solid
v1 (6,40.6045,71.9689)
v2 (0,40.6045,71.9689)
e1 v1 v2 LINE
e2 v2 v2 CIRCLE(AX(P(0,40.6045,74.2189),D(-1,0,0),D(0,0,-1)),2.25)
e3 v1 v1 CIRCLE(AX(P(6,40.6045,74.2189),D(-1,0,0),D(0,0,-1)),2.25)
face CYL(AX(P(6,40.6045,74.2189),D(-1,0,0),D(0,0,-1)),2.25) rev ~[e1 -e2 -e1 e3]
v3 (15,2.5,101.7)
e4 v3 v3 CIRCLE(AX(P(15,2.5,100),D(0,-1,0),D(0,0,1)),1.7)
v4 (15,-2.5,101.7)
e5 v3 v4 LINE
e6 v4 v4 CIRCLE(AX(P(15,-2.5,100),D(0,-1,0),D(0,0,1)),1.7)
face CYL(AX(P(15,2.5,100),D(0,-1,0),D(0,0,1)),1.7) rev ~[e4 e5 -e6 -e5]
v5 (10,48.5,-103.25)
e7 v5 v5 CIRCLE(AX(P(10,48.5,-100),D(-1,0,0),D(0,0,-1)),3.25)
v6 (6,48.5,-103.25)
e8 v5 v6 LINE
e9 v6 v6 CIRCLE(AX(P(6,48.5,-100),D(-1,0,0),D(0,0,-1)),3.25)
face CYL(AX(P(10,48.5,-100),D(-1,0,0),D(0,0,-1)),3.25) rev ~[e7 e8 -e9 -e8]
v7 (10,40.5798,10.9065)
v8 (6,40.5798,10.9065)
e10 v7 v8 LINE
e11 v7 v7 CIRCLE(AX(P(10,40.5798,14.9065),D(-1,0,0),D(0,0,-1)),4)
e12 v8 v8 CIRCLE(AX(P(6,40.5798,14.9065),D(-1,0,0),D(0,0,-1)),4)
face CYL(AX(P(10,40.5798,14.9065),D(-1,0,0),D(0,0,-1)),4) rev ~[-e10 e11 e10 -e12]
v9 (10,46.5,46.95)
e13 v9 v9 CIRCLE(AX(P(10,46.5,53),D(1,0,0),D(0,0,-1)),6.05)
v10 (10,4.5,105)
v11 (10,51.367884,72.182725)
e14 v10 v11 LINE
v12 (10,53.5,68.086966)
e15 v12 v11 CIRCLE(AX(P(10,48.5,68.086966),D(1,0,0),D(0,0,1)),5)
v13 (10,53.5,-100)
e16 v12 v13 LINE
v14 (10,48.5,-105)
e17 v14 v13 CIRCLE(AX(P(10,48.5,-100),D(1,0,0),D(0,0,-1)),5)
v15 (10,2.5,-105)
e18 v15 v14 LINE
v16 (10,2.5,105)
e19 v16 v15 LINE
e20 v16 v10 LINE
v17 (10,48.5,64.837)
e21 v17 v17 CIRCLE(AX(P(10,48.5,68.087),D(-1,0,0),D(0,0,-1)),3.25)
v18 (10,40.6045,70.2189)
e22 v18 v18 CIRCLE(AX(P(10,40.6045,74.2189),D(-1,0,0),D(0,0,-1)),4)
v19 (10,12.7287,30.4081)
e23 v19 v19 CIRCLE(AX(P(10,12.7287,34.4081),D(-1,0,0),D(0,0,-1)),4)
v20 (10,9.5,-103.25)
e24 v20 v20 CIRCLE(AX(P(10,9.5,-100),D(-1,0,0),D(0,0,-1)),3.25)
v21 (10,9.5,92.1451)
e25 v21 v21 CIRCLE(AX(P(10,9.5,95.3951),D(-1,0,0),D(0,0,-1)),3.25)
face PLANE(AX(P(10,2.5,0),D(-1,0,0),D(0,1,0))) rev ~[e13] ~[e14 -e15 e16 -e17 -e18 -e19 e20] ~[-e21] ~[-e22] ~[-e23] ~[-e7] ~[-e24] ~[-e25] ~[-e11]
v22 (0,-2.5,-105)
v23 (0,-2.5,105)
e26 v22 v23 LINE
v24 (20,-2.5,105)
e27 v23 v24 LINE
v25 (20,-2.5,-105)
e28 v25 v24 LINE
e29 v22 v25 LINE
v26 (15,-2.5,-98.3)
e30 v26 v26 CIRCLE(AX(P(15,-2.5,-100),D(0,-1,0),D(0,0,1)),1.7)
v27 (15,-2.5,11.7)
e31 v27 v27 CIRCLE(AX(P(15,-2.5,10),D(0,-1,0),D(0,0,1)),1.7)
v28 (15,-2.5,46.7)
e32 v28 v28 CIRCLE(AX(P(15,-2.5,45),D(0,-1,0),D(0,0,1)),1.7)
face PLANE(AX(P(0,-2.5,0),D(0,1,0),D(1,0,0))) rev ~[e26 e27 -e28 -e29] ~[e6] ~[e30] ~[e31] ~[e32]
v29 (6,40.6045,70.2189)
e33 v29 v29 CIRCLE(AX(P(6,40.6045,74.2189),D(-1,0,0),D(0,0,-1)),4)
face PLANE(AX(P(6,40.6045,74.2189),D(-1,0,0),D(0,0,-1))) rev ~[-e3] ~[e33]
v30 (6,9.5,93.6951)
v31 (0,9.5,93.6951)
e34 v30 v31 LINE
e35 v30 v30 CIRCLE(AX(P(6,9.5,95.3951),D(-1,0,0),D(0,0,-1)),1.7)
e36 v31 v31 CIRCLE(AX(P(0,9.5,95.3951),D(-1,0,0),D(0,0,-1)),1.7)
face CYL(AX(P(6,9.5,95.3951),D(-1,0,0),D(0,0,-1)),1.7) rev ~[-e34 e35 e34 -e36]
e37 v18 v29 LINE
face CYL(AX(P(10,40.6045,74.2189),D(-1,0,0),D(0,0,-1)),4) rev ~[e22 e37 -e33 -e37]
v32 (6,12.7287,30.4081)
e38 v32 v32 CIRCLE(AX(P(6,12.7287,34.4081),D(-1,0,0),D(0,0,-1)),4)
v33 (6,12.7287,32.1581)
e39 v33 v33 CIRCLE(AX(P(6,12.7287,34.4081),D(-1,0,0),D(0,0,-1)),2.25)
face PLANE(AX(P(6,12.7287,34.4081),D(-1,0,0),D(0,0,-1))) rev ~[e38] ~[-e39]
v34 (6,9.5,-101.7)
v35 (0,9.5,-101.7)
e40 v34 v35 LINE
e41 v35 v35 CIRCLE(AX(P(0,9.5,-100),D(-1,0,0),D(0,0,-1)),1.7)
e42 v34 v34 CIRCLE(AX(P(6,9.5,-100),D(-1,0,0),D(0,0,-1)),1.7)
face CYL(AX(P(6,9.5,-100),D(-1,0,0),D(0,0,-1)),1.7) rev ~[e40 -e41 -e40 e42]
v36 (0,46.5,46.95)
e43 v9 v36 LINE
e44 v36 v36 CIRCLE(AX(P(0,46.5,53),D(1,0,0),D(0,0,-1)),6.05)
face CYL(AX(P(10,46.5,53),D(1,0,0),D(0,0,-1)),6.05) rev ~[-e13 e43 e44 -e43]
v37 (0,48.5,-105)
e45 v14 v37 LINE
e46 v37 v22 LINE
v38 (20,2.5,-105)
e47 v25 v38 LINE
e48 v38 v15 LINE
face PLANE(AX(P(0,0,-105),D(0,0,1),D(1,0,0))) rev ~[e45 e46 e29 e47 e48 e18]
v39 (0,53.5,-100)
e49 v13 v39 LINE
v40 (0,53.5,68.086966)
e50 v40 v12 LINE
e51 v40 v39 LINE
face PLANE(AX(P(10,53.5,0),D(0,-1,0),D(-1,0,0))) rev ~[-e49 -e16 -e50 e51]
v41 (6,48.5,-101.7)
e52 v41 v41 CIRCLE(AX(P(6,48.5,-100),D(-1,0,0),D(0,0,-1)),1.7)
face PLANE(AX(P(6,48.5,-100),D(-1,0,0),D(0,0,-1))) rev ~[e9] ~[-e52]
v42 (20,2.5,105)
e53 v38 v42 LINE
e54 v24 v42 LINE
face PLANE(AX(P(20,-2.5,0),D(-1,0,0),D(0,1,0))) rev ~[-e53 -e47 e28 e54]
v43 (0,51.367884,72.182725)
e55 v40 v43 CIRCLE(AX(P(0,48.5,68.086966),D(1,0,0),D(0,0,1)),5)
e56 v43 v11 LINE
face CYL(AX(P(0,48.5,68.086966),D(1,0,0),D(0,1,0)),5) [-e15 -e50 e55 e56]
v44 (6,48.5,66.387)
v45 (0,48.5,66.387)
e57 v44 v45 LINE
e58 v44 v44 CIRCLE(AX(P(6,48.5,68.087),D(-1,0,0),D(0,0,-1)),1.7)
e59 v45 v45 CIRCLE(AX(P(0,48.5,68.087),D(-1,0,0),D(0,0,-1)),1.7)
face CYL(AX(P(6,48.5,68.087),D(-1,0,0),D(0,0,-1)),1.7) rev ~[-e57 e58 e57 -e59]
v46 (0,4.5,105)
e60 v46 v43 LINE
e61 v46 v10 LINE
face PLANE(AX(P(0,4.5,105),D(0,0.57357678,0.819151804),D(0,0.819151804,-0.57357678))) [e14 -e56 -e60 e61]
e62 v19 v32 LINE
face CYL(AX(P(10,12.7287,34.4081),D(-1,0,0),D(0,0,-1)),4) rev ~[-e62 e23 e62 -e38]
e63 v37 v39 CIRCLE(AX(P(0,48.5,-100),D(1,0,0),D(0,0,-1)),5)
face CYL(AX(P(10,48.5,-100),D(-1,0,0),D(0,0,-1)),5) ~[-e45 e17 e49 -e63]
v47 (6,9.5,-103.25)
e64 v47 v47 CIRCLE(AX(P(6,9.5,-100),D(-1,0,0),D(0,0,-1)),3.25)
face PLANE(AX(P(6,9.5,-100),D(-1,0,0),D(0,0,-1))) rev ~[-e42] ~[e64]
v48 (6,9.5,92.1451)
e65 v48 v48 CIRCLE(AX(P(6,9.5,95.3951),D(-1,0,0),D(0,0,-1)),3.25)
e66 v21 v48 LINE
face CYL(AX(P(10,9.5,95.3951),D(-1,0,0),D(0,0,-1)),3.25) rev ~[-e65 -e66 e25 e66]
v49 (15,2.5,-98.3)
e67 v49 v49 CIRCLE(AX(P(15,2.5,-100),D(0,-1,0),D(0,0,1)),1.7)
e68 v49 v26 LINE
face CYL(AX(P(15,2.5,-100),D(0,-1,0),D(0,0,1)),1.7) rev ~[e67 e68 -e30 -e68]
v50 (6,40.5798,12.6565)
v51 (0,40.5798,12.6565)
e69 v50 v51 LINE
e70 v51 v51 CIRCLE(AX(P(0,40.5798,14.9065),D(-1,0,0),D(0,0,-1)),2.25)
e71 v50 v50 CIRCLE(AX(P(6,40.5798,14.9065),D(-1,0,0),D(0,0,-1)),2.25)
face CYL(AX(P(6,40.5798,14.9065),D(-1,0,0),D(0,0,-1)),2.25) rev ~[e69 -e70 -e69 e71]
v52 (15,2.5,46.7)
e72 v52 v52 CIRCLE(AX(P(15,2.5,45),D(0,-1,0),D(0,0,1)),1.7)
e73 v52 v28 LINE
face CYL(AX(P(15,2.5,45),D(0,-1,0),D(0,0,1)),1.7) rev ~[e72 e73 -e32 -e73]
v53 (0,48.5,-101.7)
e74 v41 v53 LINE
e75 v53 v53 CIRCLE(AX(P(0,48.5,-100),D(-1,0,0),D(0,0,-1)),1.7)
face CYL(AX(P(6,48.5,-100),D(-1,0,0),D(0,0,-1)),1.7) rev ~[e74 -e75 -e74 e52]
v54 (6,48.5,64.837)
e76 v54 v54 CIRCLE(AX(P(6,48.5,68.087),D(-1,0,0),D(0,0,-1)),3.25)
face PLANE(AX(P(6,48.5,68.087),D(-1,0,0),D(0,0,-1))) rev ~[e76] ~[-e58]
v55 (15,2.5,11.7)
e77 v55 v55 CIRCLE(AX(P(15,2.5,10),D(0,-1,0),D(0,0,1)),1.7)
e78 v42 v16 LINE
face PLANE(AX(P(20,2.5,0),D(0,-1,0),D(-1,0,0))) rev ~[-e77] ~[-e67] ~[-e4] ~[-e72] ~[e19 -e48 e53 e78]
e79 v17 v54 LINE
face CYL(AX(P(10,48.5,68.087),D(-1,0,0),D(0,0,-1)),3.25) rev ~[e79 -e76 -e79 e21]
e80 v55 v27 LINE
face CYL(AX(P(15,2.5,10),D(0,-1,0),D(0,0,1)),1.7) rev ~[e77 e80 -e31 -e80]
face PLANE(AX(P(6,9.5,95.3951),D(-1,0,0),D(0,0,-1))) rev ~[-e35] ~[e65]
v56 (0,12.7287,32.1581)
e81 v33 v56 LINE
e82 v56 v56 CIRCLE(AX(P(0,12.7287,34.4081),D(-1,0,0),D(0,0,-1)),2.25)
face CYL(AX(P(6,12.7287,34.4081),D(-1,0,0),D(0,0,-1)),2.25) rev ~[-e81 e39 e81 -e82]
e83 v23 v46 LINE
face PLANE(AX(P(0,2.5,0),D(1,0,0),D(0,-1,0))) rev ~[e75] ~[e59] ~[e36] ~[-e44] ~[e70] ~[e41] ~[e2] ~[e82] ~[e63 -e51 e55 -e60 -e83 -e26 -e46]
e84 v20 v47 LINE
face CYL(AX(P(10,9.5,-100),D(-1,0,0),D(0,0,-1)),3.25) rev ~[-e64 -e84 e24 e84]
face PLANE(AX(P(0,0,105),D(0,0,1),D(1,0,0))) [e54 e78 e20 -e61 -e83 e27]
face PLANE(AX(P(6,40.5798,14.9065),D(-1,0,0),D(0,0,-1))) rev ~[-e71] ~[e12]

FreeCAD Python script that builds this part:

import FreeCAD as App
import Part
import Sketcher
Q = App.Units.Quantity


def edges_at(feature, points):
    """Names of the edges that pass closest to the given points."""
    edges = feature.Shape.Edges
    near = lambda p: min(range(len(edges)), key=lambda i: edges[i].distToShape(Part.Vertex(*p))[0])
    return sorted({f"Edge{near(p) + 1}" for p in points})

doc = App.newDocument("Part")
body = doc.addObject("PartDesign::Body", "Body")

# Sketch on XY plane
sketch1 = doc.addObject("Sketcher::SketchObject", "Sketch")
body.addObject(sketch1)
sketch1.AttachmentSupport = (doc.XY_Plane, [""])
sketch1.MapMode = "FlatFace"
sketch1.addGeometry([
    Part.LineSegment(App.Vector(0, -2.5, 0), App.Vector(20, -2.5, 0)),  # 0
    Part.LineSegment(App.Vector(20, -2.5, 0), App.Vector(20, 2.5, 0)),  # 1
    Part.LineSegment(App.Vector(20, 2.5, 0), App.Vector(10, 2.5, 0)),  # 2
    Part.LineSegment(App.Vector(10, 2.5, 0), App.Vector(10, 53.5, 0)),  # 3
    Part.LineSegment(App.Vector(10, 53.5, 0), App.Vector(0, 53.5, 0)),  # 4
    Part.LineSegment(App.Vector(0, 53.5, 0), App.Vector(0, -2.5, 0)),  # 5
], False)
sketch1.addConstraint([
    Sketcher.Constraint("Coincident", 0, 2, 1, 1),
    Sketcher.Constraint("Coincident", 1, 2, 2, 1),
    Sketcher.Constraint("Coincident", 2, 2, 3, 1),
    Sketcher.Constraint("Coincident", 3, 2, 4, 1),
    Sketcher.Constraint("Coincident", 4, 2, 5, 1),
    Sketcher.Constraint("Coincident", 5, 2, 0, 1),
    Sketcher.Constraint("Horizontal", 0),
    Sketcher.Constraint("Vertical", 1),
    Sketcher.Constraint("Horizontal", 2),
    Sketcher.Constraint("Vertical", 3),
    Sketcher.Constraint("Horizontal", 4),
    Sketcher.Constraint("Vertical", 5),
    Sketcher.Constraint("PointOnObject", 4, 2, -2),
    Sketcher.Constraint("Equal", 2, 4),
    Sketcher.Constraint("DistanceX", 0, 1, 0, 2, Q("20 mm")),
    Sketcher.Constraint("DistanceY", 1, 1, 1, 2, Q("5 mm")),
    Sketcher.Constraint("DistanceY", 3, 1, 3, 2, Q("51 mm")),
    Sketcher.Constraint("DistanceY", 0, 2, -1, 1, Q("2.5 mm")),
])
pad1 = doc.addObject("PartDesign::Pad", "Pad")
body.addObject(pad1)
pad1.Profile = sketch1
pad1.Length = 210
pad1.Midplane = True

# Sketch on YZ plane
sketch2 = doc.addObject("Sketcher::SketchObject", "Sketch001")
body.addObject(sketch2)
sketch2.AttachmentSupport = (doc.YZ_Plane, [""])
sketch2.MapMode = "FlatFace"
sketch2.addGeometry([
    Part.LineSegment(App.Vector(53.5, 70.6898, 0), App.Vector(4.5, 105, 0)),
    Part.LineSegment(App.Vector(4.5, 105, 0), App.Vector(53.5, 105, 0)),
    Part.LineSegment(App.Vector(53.5, 105, 0), App.Vector(53.5, 70.6898, 0)),
], False)
sketch2.addConstraint([
    Sketcher.Constraint("Coincident", 0, 2, 1, 1),
    Sketcher.Constraint("Coincident", 1, 2, 2, 1),
    Sketcher.Constraint("Coincident", 2, 2, 0, 1),
    Sketcher.Constraint("Horizontal", 1),
    Sketcher.Constraint("Vertical", 2),
    Sketcher.Constraint("DistanceX", 1, 1, 1, 2, Q("49 mm")),
    Sketcher.Constraint("Angle", 0, Q("145 deg")),
    Sketcher.Constraint("DistanceY", -1, 1, 0, 2, Q("105 mm")),
    Sketcher.Constraint("DistanceX", -1, 1, 0, 2, Q("4.5 mm")),
])
pocket1 = doc.addObject("PartDesign::Pocket", "Pocket")
body.addObject(pocket1)
pocket1.Profile = sketch2
pocket1.Type = "ThroughAll"
pocket1.Reversed = True

# Sketch on YZ plane
sketch3 = doc.addObject("Sketcher::SketchObject", "Sketch002")
body.addObject(sketch3)
sketch3.AttachmentSupport = (doc.YZ_Plane, [""])
sketch3.MapMode = "FlatFace"
sketch3.AttachmentOffset = App.Placement(App.Vector(0, 0, 10), App.Rotation())
sketch3.addGeometry(Part.Circle(App.Vector(46.5, 53, 0), App.Vector(0, 0, 1), 6.05), False)
sketch3.addConstraint([
    Sketcher.Constraint("Diameter", 0, Q("12.1 mm")),
    Sketcher.Constraint("DistanceY", -1, 1, 0, 3, Q("53 mm")),
    Sketcher.Constraint("DistanceX", -1, 1, 0, 3, Q("46.5 mm")),
])
pocket2 = doc.addObject("PartDesign::Pocket", "Pocket001")
body.addObject(pocket2)
pocket2.Profile = sketch3
pocket2.Length = 10

# Sketch on XZ plane
sketch4 = doc.addObject("Sketcher::SketchObject", "Sketch003")
body.addObject(sketch4)
sketch4.AttachmentSupport = (doc.XZ_Plane, [""])
sketch4.MapMode = "FlatFace"
sketch4.AttachmentOffset = App.Placement(App.Vector(0, 0, -2.5), App.Rotation())
sketch4.addGeometry([
    Part.Circle(App.Vector(15, -100, 0), App.Vector(0, 0, 1), 1.7),
    Part.Circle(App.Vector(15, 100, 0), App.Vector(0, 0, 1), 1.7),
    Part.Circle(App.Vector(15, 45, 0), App.Vector(0, 0, 1), 1.7),
    Part.Circle(App.Vector(15, 10, 0), App.Vector(0, 0, 1), 1.7),
], False)
sketch4.addConstraint([
    Sketcher.Constraint("Equal", 0, 1),
    Sketcher.Constraint("Equal", 1, 2),
    Sketcher.Constraint("Equal", 2, 3),
    Sketcher.Constraint("Symmetric", 0, 3, 1, 3, -1),
    Sketcher.Constraint("Vertical", 1, 3, 2, 3),
    Sketcher.Constraint("Vertical", 2, 3, 3, 3),
    Sketcher.Constraint("Diameter", 0, Q("3.4 mm")),
    Sketcher.Constraint("DistanceX", -1, 1, 0, 3, Q("15 mm")),
    Sketcher.Constraint("DistanceY", 0, 3, -1, 1, Q("100 mm")),
    Sketcher.Constraint("DistanceY", -1, 1, 2, 3, Q("45 mm")),
    Sketcher.Constraint("DistanceY", -1, 1, 3, 3, Q("10 mm")),
])
doc.recompute()
hole = doc.addObject("PartDesign::Hole", "Hole")
body.addObject(hole)
hole.Profile = sketch4
hole.ThreadType = "None"
hole.Diameter = 3.4
hole.DepthType = "ThroughAll"
hole.Reversed = True

# Sketch on YZ plane
sketch5 = doc.addObject("Sketcher::SketchObject", "Sketch004")
body.addObject(sketch5)
sketch5.AttachmentSupport = (doc.YZ_Plane, [""])
sketch5.MapMode = "FlatFace"
sketch5.AttachmentOffset = App.Placement(App.Vector(0, 0, 10), App.Rotation())
sketch5.addGeometry([
    Part.Circle(App.Vector(40.5798, 14.9065, 0), App.Vector(0, 0, 1), 2.25),
    Part.Circle(App.Vector(12.7287, 34.4081, 0), App.Vector(0, 0, 1), 2.25),
    Part.Circle(App.Vector(40.6045, 74.2189, 0), App.Vector(0, 0, 1), 2.25),
], False)
sketch5.addConstraint([
    Sketcher.Constraint("Equal", 0, 1),
    Sketcher.Constraint("Equal", 1, 2),
    Sketcher.Constraint("Diameter", 0, Q("4.5 mm")),
    Sketcher.Constraint("DistanceY", -1, 1, 1, 3, Q("34.408 mm")),
    Sketcher.Constraint("DistanceY", -1, 1, 2, 3, Q("74.219 mm")),
    Sketcher.Constraint("DistanceX", 1, 3, 0, 3, Q("27.851 mm")),
    Sketcher.Constraint("DistanceX", -1, 1, 0, 3, Q("40.5798 mm")),
    Sketcher.Constraint("DistanceY", -1, 1, 0, 3, Q("14.9065 mm")),
    Sketcher.Constraint("DistanceX", -1, 1, 2, 3, Q("40.6045 mm")),
])
doc.recompute()
hole2 = doc.addObject("PartDesign::Hole", "Hole001")
body.addObject(hole2)
hole2.Profile = sketch5
hole2.ThreadType = "None"
hole2.Diameter = 4.5
hole2.DepthType = "ThroughAll"
hole2.HoleCutType = "Counterbore"
hole2.HoleCutDiameter = 8
hole2.HoleCutDepth = 4

# Sketch on YZ plane
sketch6 = doc.addObject("Sketcher::SketchObject", "Sketch005")
body.addObject(sketch6)
sketch6.AttachmentSupport = (doc.YZ_Plane, [""])
sketch6.MapMode = "FlatFace"
sketch6.AttachmentOffset = App.Placement(App.Vector(0, 0, 10), App.Rotation())
sketch6.addGeometry([
    Part.Circle(App.Vector(48.5, 68.087, 0), App.Vector(0, 0, 1), 1.7),
    Part.Circle(App.Vector(9.5, 95.3951, 0), App.Vector(0, 0, 1), 1.7),
    Part.Circle(App.Vector(48.5, -100, 0), App.Vector(0, 0, 1), 1.7),
    Part.Circle(App.Vector(9.5, -100, 0), App.Vector(0, 0, 1), 1.7),
], False)
sketch6.addConstraint([
    Sketcher.Constraint("Equal", 0, 1),
    Sketcher.Constraint("Equal", 1, 2),
    Sketcher.Constraint("Equal", 2, 3),
    Sketcher.Constraint("Horizontal", 2, 3, 3, 3),
    Sketcher.Constraint("Vertical", 0, 3, 2, 3),
    Sketcher.Constraint("Vertical", 1, 3, 3, 3),
    Sketcher.Constraint("Diameter", 0, Q("3.4 mm")),
    Sketcher.Constraint("DistanceY", 2, 3, -1, 1, Q("100 mm")),
    Sketcher.Constraint("DistanceX", 1, 3, 0, 3, Q("39 mm")),
    Sketcher.Constraint("DistanceX", -1, 1, 0, 3, Q("48.5 mm")),
    Sketcher.Constraint("DistanceY", -1, 1, 0, 3, Q("68.087 mm")),
    Sketcher.Constraint("DistanceY", -1, 1, 1, 3, Q("95.395 mm")),
])
doc.recompute()
hole3 = doc.addObject("PartDesign::Hole", "Hole002")
body.addObject(hole3)
hole3.Profile = sketch6
hole3.ThreadType = "None"
hole3.Diameter = 3.4
hole3.DepthType = "ThroughAll"
hole3.HoleCutType = "Counterbore"
hole3.HoleCutDiameter = 6.5
hole3.HoleCutDepth = 4
doc.recompute()

fillet = doc.addObject("PartDesign::Fillet", "Fillet")
body.addObject(fillet)
fillet.Base = (hole3, edges_at(hole3, [(5, 53.5, -105), (5, 53.5, 70.69)]))
fillet.Radius = 5

doc.recompute()
